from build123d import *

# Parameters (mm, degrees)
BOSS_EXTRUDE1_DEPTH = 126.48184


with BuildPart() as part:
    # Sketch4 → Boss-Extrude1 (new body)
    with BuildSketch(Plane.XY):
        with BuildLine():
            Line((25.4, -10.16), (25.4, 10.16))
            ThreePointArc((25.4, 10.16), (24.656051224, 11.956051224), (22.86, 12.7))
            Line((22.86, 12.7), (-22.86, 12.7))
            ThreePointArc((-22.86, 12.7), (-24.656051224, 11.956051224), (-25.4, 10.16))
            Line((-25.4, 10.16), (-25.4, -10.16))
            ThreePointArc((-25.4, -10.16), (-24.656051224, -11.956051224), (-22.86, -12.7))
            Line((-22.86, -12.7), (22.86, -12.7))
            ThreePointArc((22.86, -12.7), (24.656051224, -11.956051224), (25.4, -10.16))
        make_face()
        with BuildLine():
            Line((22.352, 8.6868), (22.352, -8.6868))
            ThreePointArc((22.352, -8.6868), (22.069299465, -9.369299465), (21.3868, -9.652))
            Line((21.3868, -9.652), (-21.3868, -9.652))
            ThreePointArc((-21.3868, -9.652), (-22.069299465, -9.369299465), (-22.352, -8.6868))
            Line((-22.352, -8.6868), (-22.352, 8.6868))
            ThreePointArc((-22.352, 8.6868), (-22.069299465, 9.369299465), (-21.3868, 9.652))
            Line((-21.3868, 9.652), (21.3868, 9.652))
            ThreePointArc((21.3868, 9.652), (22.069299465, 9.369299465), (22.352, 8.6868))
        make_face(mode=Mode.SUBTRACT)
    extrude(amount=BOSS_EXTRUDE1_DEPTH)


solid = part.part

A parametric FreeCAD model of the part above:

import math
import FreeCAD as App
import Part
import Sketcher
Q = App.Units.Quantity

doc = App.newDocument("Part")
body = doc.addObject("PartDesign::Body", "Body")

# Sketch on XY plane
sketch1 = body.newObject("Sketcher::SketchObject", "Sketch")
sketch1.AttachmentSupport = (doc.getObject("XY_Plane"), [""])
sketch1.MapMode = "FlatFace"
sketch1.addGeometry(Part.LineSegment(App.Vector(25.4, -10.2, 0), App.Vector(25.4, 10.2, 0)), False)
sketch1.addGeometry(Part.ArcOfCircle(Part.Circle(App.Vector(22.9, 10.2, 0), App.Vector(0, 0, 1), 2.5), math.radians(0), math.radians(90)), False)
sketch1.addGeometry(Part.LineSegment(App.Vector(22.9, 12.7, 0), App.Vector(-22.9, 12.7, 0)), False)
sketch1.addGeometry(Part.ArcOfCircle(Part.Circle(App.Vector(-22.9, 10.2, 0), App.Vector(0, 0, 1), 2.5), math.radians(90), math.radians(180)), False)
sketch1.addGeometry(Part.LineSegment(App.Vector(-25.4, 10.2, 0), App.Vector(-25.4, -10.2, 0)), False)
sketch1.addGeometry(Part.ArcOfCircle(Part.Circle(App.Vector(-22.9, -10.2, 0), App.Vector(0, 0, 1), 2.5), math.radians(-180), math.radians(-90)), False)
sketch1.addGeometry(Part.LineSegment(App.Vector(-22.9, -12.7, 0), App.Vector(22.9, -12.7, 0)), False)
sketch1.addGeometry(Part.ArcOfCircle(Part.Circle(App.Vector(22.9, -10.2, 0), App.Vector(0, 0, 1), 2.5), math.radians(-90), math.radians(0)), False)
sketch1.addGeometry(Part.ArcOfCircle(Part.Circle(App.Vector(21.4, 8.7, 0), App.Vector(0, 0, 1), 1), math.radians(0), math.radians(90)), False)
sketch1.addGeometry(Part.LineSegment(App.Vector(22.4, 8.7, 0), App.Vector(22.4, -8.7, 0)), False)
sketch1.addGeometry(Part.ArcOfCircle(Part.Circle(App.Vector(21.4, -8.7, 0), App.Vector(0, 0, 1), 1), math.radians(-90), math.radians(0)), False)
sketch1.addGeometry(Part.LineSegment(App.Vector(21.4, -9.7, 0), App.Vector(-21.4, -9.7, 0)), False)
sketch1.addGeometry(Part.ArcOfCircle(Part.Circle(App.Vector(-21.4, -8.7, 0), App.Vector(0, 0, 1), 1), math.radians(-180), math.radians(-90)), False)
sketch1.addGeometry(Part.LineSegment(App.Vector(-22.4, -8.7, 0), App.Vector(-22.4, 8.7, 0)), False)
sketch1.addGeometry(Part.ArcOfCircle(Part.Circle(App.Vector(-21.4, 8.7, 0), App.Vector(0, 0, 1), 1), math.radians(90), math.radians(180)), False)
sketch1.addGeometry(Part.LineSegment(App.Vector(-21.4, 9.7, 0), App.Vector(21.4, 9.7, 0)), False)
sketch1.addConstraint(Sketcher.Constraint("Tangent", 0, 2, 1, 1))
sketch1.addConstraint(Sketcher.Constraint("Tangent", 1, 2, 2, 1))
sketch1.addConstraint(Sketcher.Constraint("Tangent", 2, 2, 3, 1))
sketch1.addConstraint(Sketcher.Constraint("Tangent", 3, 2, 4, 1))
sketch1.addConstraint(Sketcher.Constraint("Tangent", 4, 2, 5, 1))
sketch1.addConstraint(Sketcher.Constraint("Tangent", 5, 2, 6, 1))
sketch1.addConstraint(Sketcher.Constraint("Tangent", 6, 2, 7, 1))
sketch1.addConstraint(Sketcher.Constraint("Tangent", 7, 2, 0, 1))
sketch1.addConstraint(Sketcher.Constraint("Tangent", 8, 1, 9, 1))
sketch1.addConstraint(Sketcher.Constraint("Tangent", 9, 2, 10, 2))
sketch1.addConstraint(Sketcher.Constraint("Tangent", 10, 1, 11, 1))
sketch1.addConstraint(Sketcher.Constraint("Tangent", 11, 2, 12, 2))
sketch1.addConstraint(Sketcher.Constraint("Tangent", 12, 1, 13, 1))
sketch1.addConstraint(Sketcher.Constraint("Tangent", 13, 2, 14, 2))
sketch1.addConstraint(Sketcher.Constraint("Tangent", 14, 1, 15, 1))
sketch1.addConstraint(Sketcher.Constraint("Tangent", 15, 2, 8, 2))
sketch1.addConstraint(Sketcher.Constraint("Vertical", 0))
sketch1.addConstraint(Sketcher.Constraint("Horizontal", 2))
sketch1.addConstraint(Sketcher.Constraint("Vertical", 4))
sketch1.addConstraint(Sketcher.Constraint("Horizontal", 6))
sketch1.addConstraint(Sketcher.Constraint("Vertical", 9))
sketch1.addConstraint(Sketcher.Constraint("Horizontal", 11))
sketch1.addConstraint(Sketcher.Constraint("Vertical", 13))
sketch1.addConstraint(Sketcher.Constraint("Horizontal", 15))
sketch1.addConstraint(Sketcher.Constraint("Equal", 1, 3))
sketch1.addConstraint(Sketcher.Constraint("Equal", 3, 5))
sketch1.addConstraint(Sketcher.Constraint("Equal", 5, 7))
sketch1.addConstraint(Sketcher.Constraint("Equal", 8, 10))
sketch1.addConstraint(Sketcher.Constraint("Equal", 10, 12))
sketch1.addConstraint(Sketcher.Constraint("Equal", 12, 14))
sketch1.addConstraint(Sketcher.Constraint("Symmetric", 1, 3, 5, 3, -1, 1))
sketch1.addConstraint(Sketcher.Constraint("Symmetric", 8, 3, 12, 3, -1, 1))
sketch1.addConstraint(Sketcher.Constraint("Radius", 1, Q("0.1 in")))
sketch1.addConstraint(Sketcher.Constraint("DistanceX", 2, 2, 2, 1, Q("1.8 in")))
sketch1.addConstraint(Sketcher.Constraint("DistanceY", 0, 1, 0, 2, Q("0.8 in")))
sketch1.addConstraint(Sketcher.Constraint("Radius", 8, Q("0.038 in")))
sketch1.addConstraint(Sketcher.Constraint("DistanceX", 11, 2, 11, 1, Q("1.684 in")))
sketch1.addConstraint(Sketcher.Constraint("DistanceY", 9, 2, 9, 1, Q("0.684 in")))
pad1 = body.newObject("PartDesign::Pad", "Pad")
pad1.Profile = sketch1
pad1.Length = Q("4.9796 in")

doc.recompute()
